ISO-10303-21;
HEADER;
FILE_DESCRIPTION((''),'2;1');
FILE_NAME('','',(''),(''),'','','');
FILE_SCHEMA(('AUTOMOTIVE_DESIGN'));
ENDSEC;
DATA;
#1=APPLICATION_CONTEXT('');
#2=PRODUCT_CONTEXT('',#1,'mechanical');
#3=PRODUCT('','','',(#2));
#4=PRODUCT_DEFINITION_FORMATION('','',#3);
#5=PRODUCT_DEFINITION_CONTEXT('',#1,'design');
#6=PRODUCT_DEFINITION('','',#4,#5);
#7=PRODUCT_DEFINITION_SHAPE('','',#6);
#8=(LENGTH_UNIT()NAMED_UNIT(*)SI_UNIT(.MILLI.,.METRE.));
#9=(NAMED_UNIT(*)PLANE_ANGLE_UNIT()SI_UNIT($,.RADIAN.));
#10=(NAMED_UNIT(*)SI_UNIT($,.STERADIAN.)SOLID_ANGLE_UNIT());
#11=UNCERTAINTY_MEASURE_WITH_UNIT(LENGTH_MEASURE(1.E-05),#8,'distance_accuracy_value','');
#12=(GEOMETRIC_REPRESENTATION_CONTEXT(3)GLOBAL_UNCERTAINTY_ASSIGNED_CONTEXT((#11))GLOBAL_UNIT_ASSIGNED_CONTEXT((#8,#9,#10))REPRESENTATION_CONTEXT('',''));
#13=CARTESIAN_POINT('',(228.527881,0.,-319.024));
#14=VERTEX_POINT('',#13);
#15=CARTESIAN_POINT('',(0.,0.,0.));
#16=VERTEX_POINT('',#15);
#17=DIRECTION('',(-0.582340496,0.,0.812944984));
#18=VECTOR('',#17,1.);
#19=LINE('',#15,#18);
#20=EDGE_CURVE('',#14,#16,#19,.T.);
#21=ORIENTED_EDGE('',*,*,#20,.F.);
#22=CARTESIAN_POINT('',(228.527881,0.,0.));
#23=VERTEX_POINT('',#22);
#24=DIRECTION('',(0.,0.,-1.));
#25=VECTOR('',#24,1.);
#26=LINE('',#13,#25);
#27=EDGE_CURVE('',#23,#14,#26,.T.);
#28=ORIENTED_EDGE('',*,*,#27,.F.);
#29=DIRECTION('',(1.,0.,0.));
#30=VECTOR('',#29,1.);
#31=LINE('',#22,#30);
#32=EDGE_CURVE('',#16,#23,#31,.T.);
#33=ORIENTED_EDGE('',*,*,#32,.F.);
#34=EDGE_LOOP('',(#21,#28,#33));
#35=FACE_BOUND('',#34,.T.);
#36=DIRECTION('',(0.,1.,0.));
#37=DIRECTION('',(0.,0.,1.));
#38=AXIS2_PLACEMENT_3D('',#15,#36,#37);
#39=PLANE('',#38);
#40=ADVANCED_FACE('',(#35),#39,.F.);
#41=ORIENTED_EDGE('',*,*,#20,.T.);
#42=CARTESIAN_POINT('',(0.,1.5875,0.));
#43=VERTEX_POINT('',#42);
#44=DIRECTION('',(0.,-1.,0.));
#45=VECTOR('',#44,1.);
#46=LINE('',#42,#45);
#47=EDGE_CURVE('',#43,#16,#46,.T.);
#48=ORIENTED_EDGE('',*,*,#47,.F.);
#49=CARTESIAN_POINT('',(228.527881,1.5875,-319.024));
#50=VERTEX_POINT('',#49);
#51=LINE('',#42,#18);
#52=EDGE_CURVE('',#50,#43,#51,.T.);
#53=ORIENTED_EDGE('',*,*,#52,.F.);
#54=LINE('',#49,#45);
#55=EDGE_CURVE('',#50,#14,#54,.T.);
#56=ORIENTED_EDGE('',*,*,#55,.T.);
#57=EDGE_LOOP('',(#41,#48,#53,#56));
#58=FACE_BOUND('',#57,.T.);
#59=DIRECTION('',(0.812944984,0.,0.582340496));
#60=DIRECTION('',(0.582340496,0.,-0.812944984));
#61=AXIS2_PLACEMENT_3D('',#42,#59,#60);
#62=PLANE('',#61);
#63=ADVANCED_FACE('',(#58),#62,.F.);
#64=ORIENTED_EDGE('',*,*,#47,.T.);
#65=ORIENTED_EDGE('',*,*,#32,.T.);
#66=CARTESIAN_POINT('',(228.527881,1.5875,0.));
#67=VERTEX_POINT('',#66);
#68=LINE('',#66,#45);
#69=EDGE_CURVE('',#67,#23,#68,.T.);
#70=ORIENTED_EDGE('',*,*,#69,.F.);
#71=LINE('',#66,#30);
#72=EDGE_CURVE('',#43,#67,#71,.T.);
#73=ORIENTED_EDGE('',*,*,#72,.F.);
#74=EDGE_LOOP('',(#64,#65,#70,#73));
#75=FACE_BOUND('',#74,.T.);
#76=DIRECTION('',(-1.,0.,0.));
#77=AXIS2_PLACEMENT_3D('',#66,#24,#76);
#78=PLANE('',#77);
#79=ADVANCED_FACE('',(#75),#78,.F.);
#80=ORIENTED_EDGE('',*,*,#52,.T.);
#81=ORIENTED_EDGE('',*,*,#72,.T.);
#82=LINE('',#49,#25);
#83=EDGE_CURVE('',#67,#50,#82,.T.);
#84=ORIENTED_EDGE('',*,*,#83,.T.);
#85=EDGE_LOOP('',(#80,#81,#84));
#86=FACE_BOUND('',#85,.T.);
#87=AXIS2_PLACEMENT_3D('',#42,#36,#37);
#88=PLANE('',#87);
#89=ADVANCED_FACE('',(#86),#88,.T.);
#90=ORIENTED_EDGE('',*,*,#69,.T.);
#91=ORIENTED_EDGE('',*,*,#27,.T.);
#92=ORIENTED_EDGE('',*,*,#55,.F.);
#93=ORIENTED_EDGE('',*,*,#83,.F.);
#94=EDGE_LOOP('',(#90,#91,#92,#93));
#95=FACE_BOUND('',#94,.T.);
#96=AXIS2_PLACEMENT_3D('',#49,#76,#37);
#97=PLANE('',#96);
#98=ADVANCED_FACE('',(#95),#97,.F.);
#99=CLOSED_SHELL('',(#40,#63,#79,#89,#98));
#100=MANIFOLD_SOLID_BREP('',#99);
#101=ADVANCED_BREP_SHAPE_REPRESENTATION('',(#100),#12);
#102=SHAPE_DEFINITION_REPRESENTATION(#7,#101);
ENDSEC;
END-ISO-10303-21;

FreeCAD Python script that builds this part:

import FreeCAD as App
import Part
import Sketcher

V = App.Vector
Q = App.Units.Quantity

doc = App.newDocument("Part")
body = doc.addObject("PartDesign::Body", "Body")

# Sketch on XZ plane
sketch1 = body.newObject("Sketcher::SketchObject", "Sketch")
sketch1.AttachmentSupport = (doc.getObject("XZ_Plane"), [""])
sketch1.MapMode = "FlatFace"
sketch1.addGeometry([
    Part.LineSegment(V(228.527881, -319.024, 0), V(0, 0, 0)),
    Part.LineSegment(V(0, 0, 0), V(228.527881, 0, 0)),
    Part.LineSegment(V(228.527881, 0, 0), V(228.527881, -319.024, 0)),
], False)
sketch1.addConstraint([
    Sketcher.Constraint("Coincident", 0, 2, 1, 1),
    Sketcher.Constraint("Coincident", 1, 2, 2, 1),
    Sketcher.Constraint("Coincident", 2, 2, 0, 1),
    Sketcher.Constraint("Horizontal", 1),
    Sketcher.Constraint("Vertical", 2),
    Sketcher.Constraint("Coincident", 0, 2, -1, 1),
    Sketcher.Constraint("DistanceY", 2, 2, 2, 1, Q("12.56 in")),
    Sketcher.Constraint("Distance", 0, Q("15.45 in")),
])
pad1 = body.newObject("PartDesign::Pad", "Pad")
pad1.Profile = sketch1
pad1.Length = Q("0.0625 in")
pad1.Reversed = True

doc.recompute()
